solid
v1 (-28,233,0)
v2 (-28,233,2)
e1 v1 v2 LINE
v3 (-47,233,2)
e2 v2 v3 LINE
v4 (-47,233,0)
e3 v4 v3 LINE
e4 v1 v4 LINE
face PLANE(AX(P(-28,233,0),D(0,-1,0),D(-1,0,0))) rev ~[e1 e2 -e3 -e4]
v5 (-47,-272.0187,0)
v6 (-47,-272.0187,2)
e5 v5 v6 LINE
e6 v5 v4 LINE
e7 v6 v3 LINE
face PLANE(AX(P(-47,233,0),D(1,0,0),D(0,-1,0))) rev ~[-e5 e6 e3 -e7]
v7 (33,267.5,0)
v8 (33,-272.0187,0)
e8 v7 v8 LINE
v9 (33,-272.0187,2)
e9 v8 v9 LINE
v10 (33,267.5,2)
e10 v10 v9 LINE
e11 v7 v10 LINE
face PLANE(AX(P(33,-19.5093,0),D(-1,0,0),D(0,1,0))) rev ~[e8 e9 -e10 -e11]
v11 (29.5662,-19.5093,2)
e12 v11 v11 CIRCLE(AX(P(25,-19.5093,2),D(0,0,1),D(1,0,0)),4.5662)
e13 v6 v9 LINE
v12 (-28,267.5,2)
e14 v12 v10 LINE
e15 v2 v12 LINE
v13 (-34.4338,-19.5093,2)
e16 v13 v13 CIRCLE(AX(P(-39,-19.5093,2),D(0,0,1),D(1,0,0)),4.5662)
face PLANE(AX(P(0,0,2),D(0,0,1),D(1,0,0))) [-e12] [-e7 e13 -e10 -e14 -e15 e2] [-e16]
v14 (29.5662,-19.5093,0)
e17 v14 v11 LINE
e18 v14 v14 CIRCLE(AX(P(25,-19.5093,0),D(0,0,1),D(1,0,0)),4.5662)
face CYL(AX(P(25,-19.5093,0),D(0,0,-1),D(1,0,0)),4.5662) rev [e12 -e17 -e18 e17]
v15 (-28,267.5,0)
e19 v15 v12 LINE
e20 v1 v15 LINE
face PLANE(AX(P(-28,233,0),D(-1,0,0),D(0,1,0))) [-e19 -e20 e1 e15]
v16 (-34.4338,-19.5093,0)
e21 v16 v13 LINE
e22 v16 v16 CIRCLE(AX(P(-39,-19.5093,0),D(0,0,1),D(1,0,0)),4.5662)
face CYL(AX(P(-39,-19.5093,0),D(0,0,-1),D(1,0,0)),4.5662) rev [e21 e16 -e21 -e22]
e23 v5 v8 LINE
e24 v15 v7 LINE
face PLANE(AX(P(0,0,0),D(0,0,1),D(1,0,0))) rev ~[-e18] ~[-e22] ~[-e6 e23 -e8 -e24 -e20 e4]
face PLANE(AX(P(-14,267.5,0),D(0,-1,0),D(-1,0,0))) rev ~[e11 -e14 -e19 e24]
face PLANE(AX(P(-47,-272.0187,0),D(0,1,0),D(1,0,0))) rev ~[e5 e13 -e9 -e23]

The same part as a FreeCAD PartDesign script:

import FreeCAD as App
import Part
import Sketcher

V = App.Vector
Q = App.Units.Quantity


def add_polygon(sketch, points):
    """Adds a closed chain of lines whose ends are joined by coincident constraints."""
    first, n = sketch.GeometryCount, len(points)
    for a, b in zip(points, points[1:] + points[:1]):
        sketch.addGeometry(Part.LineSegment(App.Vector(*a, 0), App.Vector(*b, 0)), False)
    for i in range(n):
        sketch.addConstraint(Sketcher.Constraint("Coincident", first + i, 2, first + (i + 1) % n, 1))

doc = App.newDocument("Part")
body = doc.addObject("PartDesign::Body", "Body")

# Sketch on XY plane
sketch1 = body.newObject("Sketcher::SketchObject", "Sketch")
sketch1.AttachmentSupport = (doc.getObject("XY_Plane"), [""])
sketch1.MapMode = "FlatFace"
add_polygon(sketch1, [(33, 267.5), (-28, 267.5), (-28, 233), (-47, 233), (-47, -272.0187), (33, -272.0187)])  # lines 0-5
sketch1.addGeometry(Part.Circle(V(25, -19.5093, 0), V(0, 0, 1), 4.5662), False)  # 6
sketch1.addGeometry(Part.Circle(V(-39, -19.5093, 0), V(0, 0, 1), 4.5662), False)  # 7
sketch1.addConstraint([
    Sketcher.Constraint("Horizontal", 0),
    Sketcher.Constraint("Vertical", 1),
    Sketcher.Constraint("Horizontal", 2),
    Sketcher.Constraint("Vertical", 3),
    Sketcher.Constraint("Horizontal", 4),
    Sketcher.Constraint("Vertical", 5),
    Sketcher.Constraint("Equal", 6, 7),
    Sketcher.Constraint("Horizontal", 6, 3, 7, 3),
    Sketcher.Constraint("DistanceX", 4, 1, 4, 2, Q("80 mm")),
    Sketcher.Constraint("DistanceX", 0, 2, 0, 1, Q("61 mm")),
    Sketcher.Constraint("DistanceY", 1, 2, 1, 1, Q("34.5 mm")),
    Sketcher.Constraint("DistanceX", -1, 1, 6, 3, Q("25 mm")),
    Sketcher.Constraint("DistanceX", 7, 3, -1, 1, Q("39 mm")),
    Sketcher.Constraint("DistanceX", 0, 2, -1, 1, Q("28 mm")),
    Sketcher.Constraint("DistanceY", -1, 1, 1, 2, Q("233 mm")),
    Sketcher.Constraint("Diameter", 6, Q("9.1324 mm")),
    Sketcher.Constraint("DistanceY", 3, 2, 3, 1, Q("505.0187 mm")),
    Sketcher.Constraint("DistanceY", 6, 3, -1, 1, Q("19.5093 mm")),
])
pad1 = body.newObject("PartDesign::Pad", "Pad")
pad1.Profile = sketch1
pad1.Length = 2

doc.recompute()
